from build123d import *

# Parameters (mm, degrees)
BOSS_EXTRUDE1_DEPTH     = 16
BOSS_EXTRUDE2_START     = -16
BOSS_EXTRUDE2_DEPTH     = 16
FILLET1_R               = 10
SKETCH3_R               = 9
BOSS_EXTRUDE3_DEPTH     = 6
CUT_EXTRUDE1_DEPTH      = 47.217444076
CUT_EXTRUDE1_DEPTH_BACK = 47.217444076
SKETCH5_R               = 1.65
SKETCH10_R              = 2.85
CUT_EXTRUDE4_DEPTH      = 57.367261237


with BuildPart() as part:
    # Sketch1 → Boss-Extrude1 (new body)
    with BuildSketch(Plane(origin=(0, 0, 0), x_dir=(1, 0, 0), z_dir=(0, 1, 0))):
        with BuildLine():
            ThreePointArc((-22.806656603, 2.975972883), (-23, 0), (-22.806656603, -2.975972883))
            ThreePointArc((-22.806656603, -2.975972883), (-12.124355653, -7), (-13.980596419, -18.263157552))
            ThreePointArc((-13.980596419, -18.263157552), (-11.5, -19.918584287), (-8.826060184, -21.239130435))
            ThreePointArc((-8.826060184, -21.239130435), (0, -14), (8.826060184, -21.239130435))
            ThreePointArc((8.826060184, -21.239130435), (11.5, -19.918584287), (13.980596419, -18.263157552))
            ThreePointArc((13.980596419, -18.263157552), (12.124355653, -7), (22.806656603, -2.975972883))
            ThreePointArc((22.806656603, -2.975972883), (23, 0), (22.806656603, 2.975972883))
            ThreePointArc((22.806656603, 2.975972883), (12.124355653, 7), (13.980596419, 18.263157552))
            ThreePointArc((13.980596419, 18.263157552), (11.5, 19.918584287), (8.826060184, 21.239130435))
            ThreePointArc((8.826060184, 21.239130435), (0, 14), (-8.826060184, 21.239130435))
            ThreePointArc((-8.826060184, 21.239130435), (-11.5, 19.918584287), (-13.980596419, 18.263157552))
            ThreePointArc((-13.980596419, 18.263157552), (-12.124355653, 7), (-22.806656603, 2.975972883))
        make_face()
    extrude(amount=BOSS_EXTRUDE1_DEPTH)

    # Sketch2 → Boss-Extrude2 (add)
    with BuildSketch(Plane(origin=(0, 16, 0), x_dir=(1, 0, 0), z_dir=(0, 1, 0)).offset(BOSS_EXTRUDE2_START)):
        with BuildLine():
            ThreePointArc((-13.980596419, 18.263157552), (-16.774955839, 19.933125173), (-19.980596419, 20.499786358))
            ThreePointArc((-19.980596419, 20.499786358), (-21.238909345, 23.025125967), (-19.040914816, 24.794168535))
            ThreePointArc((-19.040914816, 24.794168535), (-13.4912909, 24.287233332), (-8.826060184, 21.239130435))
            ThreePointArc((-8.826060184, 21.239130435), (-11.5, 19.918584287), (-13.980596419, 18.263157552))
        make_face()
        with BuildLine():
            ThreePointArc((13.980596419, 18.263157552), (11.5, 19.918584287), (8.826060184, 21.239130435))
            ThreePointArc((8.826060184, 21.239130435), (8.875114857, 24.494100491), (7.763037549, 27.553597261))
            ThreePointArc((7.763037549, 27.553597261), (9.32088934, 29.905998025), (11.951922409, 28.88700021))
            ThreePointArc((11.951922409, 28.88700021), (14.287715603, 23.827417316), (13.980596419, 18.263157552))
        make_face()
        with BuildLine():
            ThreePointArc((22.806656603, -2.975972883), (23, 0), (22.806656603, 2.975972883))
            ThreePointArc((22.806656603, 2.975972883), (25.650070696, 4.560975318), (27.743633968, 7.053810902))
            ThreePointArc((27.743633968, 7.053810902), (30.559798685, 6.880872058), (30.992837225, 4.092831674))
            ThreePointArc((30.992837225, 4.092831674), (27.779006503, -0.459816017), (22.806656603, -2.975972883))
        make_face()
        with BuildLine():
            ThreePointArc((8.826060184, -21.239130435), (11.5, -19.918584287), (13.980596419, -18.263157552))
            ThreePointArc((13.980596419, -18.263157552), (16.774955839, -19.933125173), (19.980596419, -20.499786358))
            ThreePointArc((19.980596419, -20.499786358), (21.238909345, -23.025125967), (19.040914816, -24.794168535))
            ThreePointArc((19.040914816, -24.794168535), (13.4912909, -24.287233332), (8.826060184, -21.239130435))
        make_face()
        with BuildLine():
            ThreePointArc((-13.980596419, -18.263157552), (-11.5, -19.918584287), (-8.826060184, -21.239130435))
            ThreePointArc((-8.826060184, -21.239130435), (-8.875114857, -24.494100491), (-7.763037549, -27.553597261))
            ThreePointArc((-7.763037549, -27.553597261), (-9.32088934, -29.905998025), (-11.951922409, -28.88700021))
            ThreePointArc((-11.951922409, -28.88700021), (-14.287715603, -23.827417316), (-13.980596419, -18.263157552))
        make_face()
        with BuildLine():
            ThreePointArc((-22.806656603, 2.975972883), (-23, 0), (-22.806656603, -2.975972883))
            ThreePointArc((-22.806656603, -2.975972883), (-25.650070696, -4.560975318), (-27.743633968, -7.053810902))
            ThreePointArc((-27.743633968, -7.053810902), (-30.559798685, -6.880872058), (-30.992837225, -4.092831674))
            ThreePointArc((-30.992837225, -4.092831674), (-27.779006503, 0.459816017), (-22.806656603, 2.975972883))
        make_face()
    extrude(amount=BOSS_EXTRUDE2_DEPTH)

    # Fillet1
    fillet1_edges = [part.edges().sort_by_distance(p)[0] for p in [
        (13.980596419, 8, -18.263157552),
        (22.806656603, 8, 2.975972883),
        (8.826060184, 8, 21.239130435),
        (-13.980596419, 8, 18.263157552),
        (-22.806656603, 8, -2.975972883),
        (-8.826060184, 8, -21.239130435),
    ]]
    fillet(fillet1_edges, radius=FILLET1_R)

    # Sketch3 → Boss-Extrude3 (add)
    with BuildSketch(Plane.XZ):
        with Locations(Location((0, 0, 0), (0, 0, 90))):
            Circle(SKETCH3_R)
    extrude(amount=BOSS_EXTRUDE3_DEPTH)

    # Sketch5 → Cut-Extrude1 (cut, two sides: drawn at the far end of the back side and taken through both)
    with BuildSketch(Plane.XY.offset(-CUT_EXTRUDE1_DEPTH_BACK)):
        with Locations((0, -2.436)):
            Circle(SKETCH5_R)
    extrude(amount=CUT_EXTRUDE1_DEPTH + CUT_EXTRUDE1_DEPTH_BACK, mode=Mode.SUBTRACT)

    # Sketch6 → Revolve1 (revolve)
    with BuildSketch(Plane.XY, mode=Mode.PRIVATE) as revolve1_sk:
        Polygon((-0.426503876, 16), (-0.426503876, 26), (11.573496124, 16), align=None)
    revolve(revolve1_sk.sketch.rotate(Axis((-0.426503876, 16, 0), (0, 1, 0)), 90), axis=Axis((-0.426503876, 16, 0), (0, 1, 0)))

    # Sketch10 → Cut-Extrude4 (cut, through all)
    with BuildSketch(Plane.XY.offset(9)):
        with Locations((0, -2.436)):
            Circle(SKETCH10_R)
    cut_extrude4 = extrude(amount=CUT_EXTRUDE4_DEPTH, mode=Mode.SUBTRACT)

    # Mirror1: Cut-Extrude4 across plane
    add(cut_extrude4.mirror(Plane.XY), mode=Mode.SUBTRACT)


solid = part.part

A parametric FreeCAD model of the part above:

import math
import FreeCAD as App
import Part
import Sketcher
from FreeCAD import Vector
Q = App.Units.Quantity


def edges_at(feature, points):
    """Names of the edges that pass closest to the given points."""
    edges = feature.Shape.Edges
    near = lambda p: min(range(len(edges)), key=lambda i: edges[i].distToShape(Part.Vertex(*p))[0])
    return sorted({f"Edge{near(p) + 1}" for p in points})

doc = App.newDocument("Part")
body = doc.addObject("PartDesign::Body", "Body")

sketch1 = doc.addObject("Sketcher::SketchObject", "Sketch")
body.addObject(sketch1)
sketch1.AttachmentSupport = (doc.XZ_Plane, [""])
sketch1.MapMode = "FlatFace"
sketch1.addGeometry([
    Part.ArcOfCircle(Part.Circle(Vector(0, 0, 0), Vector(0, 0, 1), 23), math.radians(172.565649), math.radians(187.434351)),
    Part.ArcOfCircle(Part.Circle(Vector(-19.918584, 11.5, 0), Vector(0, 0, 1), 9), math.radians(-108.717176), math.radians(48.717176)),
    Part.ArcOfCircle(Part.Circle(Vector(0, 0, 0), Vector(0, 0, 1), 23), math.radians(112.565649), math.radians(127.434351)),
    Part.ArcOfCircle(Part.Circle(Vector(0, 23, 0), Vector(0, 0, 1), 9), math.radians(-168.717176), math.radians(-11.282824)),
    Part.ArcOfCircle(Part.Circle(Vector(0, 0, 0), Vector(0, 0, 1), 23), math.radians(52.565649), math.radians(67.434351)),
    Part.ArcOfCircle(Part.Circle(Vector(19.918584, 11.5, 0), Vector(0, 0, 1), 9), math.radians(131.282824), math.radians(288.717176)),
    Part.ArcOfCircle(Part.Circle(Vector(0, 0, 0), Vector(0, 0, 1), 23), math.radians(-7.434351), math.radians(7.434351)),
    Part.ArcOfCircle(Part.Circle(Vector(19.918584, -11.5, 0), Vector(0, 0, 1), 9), math.radians(71.282824), math.radians(228.717176)),
    Part.ArcOfCircle(Part.Circle(Vector(0, 0, 0), Vector(0, 0, 1), 23), math.radians(-67.434351), math.radians(-52.565649)),
    Part.ArcOfCircle(Part.Circle(Vector(0, -23, 0), Vector(0, 0, 1), 9), math.radians(11.282824), math.radians(168.717176)),
    Part.ArcOfCircle(Part.Circle(Vector(0, 0, 0), Vector(0, 0, 1), 23), math.radians(-127.434351), math.radians(-112.565649)),
    Part.ArcOfCircle(Part.Circle(Vector(-19.918584, -11.5, 0), Vector(0, 0, 1), 9), math.radians(-48.717176), math.radians(108.717176)),
], False)
sketch1.addConstraint([
    Sketcher.Constraint("Coincident", 0, 1, 1, 1),
    Sketcher.Constraint("Coincident", 1, 2, 2, 2),
    Sketcher.Constraint("Coincident", 2, 1, 3, 1),
    Sketcher.Constraint("Coincident", 3, 2, 4, 2),
    Sketcher.Constraint("Coincident", 4, 1, 5, 1),
    Sketcher.Constraint("Coincident", 5, 2, 6, 2),
    Sketcher.Constraint("Coincident", 6, 1, 7, 1),
    Sketcher.Constraint("Coincident", 7, 2, 8, 2),
    Sketcher.Constraint("Coincident", 8, 1, 9, 1),
    Sketcher.Constraint("Coincident", 9, 2, 10, 2),
    Sketcher.Constraint("Coincident", 10, 1, 11, 1),
    Sketcher.Constraint("Coincident", 11, 2, 0, 2),
    Sketcher.Constraint("Coincident", 0, 3, -1, 1),
    Sketcher.Constraint("Coincident", 2, 3, -1, 1),
    Sketcher.Constraint("Coincident", 4, 3, -1, 1),
    Sketcher.Constraint("Coincident", 6, 3, -1, 1),
    Sketcher.Constraint("Coincident", 8, 3, -1, 1),
    Sketcher.Constraint("Coincident", 10, 3, -1, 1),
    Sketcher.Constraint("Equal", 0, 2),
    Sketcher.Constraint("Equal", 1, 3),
    Sketcher.Constraint("Equal", 2, 4),
    Sketcher.Constraint("Equal", 3, 5),
    Sketcher.Constraint("Equal", 4, 6),
    Sketcher.Constraint("Equal", 5, 7),
    Sketcher.Constraint("Equal", 6, 8),
    Sketcher.Constraint("Equal", 7, 9),
    Sketcher.Constraint("Equal", 8, 10),
    Sketcher.Constraint("Equal", 9, 11),
    Sketcher.Constraint("Symmetric", 1, 3, 7, 3, -1, 1),
    Sketcher.Constraint("Symmetric", 3, 3, 9, 3, -1, 1),
    Sketcher.Constraint("Symmetric", 5, 3, 11, 3, -1, 1),
    Sketcher.Constraint("Symmetric", 1, 3, 5, 3, -2),
    Sketcher.Constraint("PointOnObject", 3, 3, -2),
    Sketcher.Constraint("Radius", 0, Q("23 mm")),
    Sketcher.Constraint("Radius", 1, Q("9 mm")),
    Sketcher.Constraint("DistanceY", -1, 1, 3, 3, Q("23 mm")),
    Sketcher.Constraint("DistanceY", 7, 3, 5, 3, Q("23 mm")),
    Sketcher.Constraint("DistanceX", 1, 3, 5, 3, Q("39.837169 mm")),
])
pad1 = doc.addObject("PartDesign::Pad", "Pad")
body.addObject(pad1)
pad1.Profile = sketch1
pad1.Length = 16
pad1.Reversed = True

sketch2 = doc.addObject("Sketcher::SketchObject", "Sketch001")
body.addObject(sketch2)
sketch2.AttachmentSupport = (doc.XZ_Plane, [""])
sketch2.MapMode = "FlatFace"
sketch2.addGeometry([
    Part.ArcOfCircle(Part.Circle(Vector(-19.918584, -11.5, 0), Vector(0, 0, 1), 9), math.radians(-90.394785), math.radians(-48.717176)),
    Part.ArcOfCircle(Part.Circle(Vector(0, 0, 0), Vector(0, 0, 1), 23), math.radians(-127.434351), math.radians(-112.565649)),
    Part.ArcOfCircle(Part.Circle(Vector(-17.284979, -13.386655, 0), Vector(0, 0, 1), 11.541866), math.radians(-98.750745), math.radians(-42.870774)),
    Part.ArcOfCircle(Part.Circle(Vector(-19.040915, -22.544169, 0), Vector(0, 0, 1), 2.25), math.radians(114.685445), math.radians(270)),
    Part.ArcOfCircle(Part.Circle(Vector(0, 0, 0), Vector(0, 0, 1), 23), math.radians(-67.434351), math.radians(-52.565649)),
    Part.ArcOfCircle(Part.Circle(Vector(2.950694, -21.662558, 0), Vector(0, 0, 1), 11.541866), math.radians(-38.750745), math.radians(17.129226)),
    Part.ArcOfCircle(Part.Circle(Vector(10.003365, -27.762, 0), Vector(0, 0, 1), 2.25), math.radians(174.685445), math.radians(330)),
    Part.ArcOfCircle(Part.Circle(Vector(0, -23, 0), Vector(0, 0, 1), 9), math.radians(-30.394785), math.radians(11.282824)),
    Part.ArcOfCircle(Part.Circle(Vector(0, 0, 0), Vector(0, 0, 1), 23), math.radians(-7.434351), math.radians(7.434351)),
    Part.ArcOfCircle(Part.Circle(Vector(20.235673, -8.275903, 0), Vector(0, 0, 1), 11.541866), math.radians(21.249255), math.radians(77.129226)),
    Part.ArcOfCircle(Part.Circle(Vector(29.04428, -5.217832, 0), Vector(0, 0, 1), 2.25), math.radians(-125.314555), math.radians(30)),
    Part.ArcOfCircle(Part.Circle(Vector(19.918584, -11.5, 0), Vector(0, 0, 1), 9), math.radians(29.605215), math.radians(71.282824)),
    Part.ArcOfCircle(Part.Circle(Vector(0, 0, 0), Vector(0, 0, 1), 23), math.radians(52.565649), math.radians(67.434351)),
    Part.ArcOfCircle(Part.Circle(Vector(17.284979, 13.386655, 0), Vector(0, 0, 1), 11.541866), math.radians(81.249255), math.radians(137.129226)),
    Part.ArcOfCircle(Part.Circle(Vector(19.040915, 22.544169, 0), Vector(0, 0, 1), 2.25), math.radians(-65.314555), math.radians(90)),
    Part.ArcOfCircle(Part.Circle(Vector(19.918584, 11.5, 0), Vector(0, 0, 1), 9), math.radians(89.605215), math.radians(131.282824)),
    Part.ArcOfCircle(Part.Circle(Vector(0, 0, 0), Vector(0, 0, 1), 23), math.radians(112.565649), math.radians(127.434351)),
    Part.ArcOfCircle(Part.Circle(Vector(-2.950694, 21.662558, 0), Vector(0, 0, 1), 11.541866), math.radians(141.249255), math.radians(197.129226)),
    Part.ArcOfCircle(Part.Circle(Vector(-10.003365, 27.762, 0), Vector(0, 0, 1), 2.25), math.radians(-5.314555), math.radians(150)),
    Part.ArcOfCircle(Part.Circle(Vector(0, 23, 0), Vector(0, 0, 1), 9), math.radians(149.605215), math.radians(191.282824)),
    Part.ArcOfCircle(Part.Circle(Vector(0, 0, 0), Vector(0, 0, 1), 23), math.radians(172.565649), math.radians(187.434351)),
    Part.ArcOfCircle(Part.Circle(Vector(-20.235673, 8.275903, 0), Vector(0, 0, 1), 11.541866), math.radians(-158.750745), math.radians(-102.870774)),
    Part.ArcOfCircle(Part.Circle(Vector(-29.04428, 5.217832, 0), Vector(0, 0, 1), 2.25), math.radians(54.685445), math.radians(210)),
    Part.ArcOfCircle(Part.Circle(Vector(-19.918584, 11.5, 0), Vector(0, 0, 1), 9), math.radians(-150.394785), math.radians(-108.717176)),
], False)
sketch2.addConstraint([
    Sketcher.Constraint("Coincident", 0, 2, 1, 1),
    Sketcher.Constraint("Coincident", 1, 2, 2, 2),
    Sketcher.Constraint("Coincident", 2, 1, 3, 2),
    Sketcher.Constraint("Coincident", 3, 1, 0, 1),
    Sketcher.Constraint("Coincident", 4, 2, 5, 2),
    Sketcher.Constraint("Coincident", 5, 1, 6, 2),
    Sketcher.Constraint("Coincident", 6, 1, 7, 1),
    Sketcher.Constraint("Coincident", 7, 2, 4, 1),
    Sketcher.Constraint("Coincident", 8, 2, 9, 2),
    Sketcher.Constraint("Coincident", 9, 1, 10, 2),
    Sketcher.Constraint("Coincident", 10, 1, 11, 1),
    Sketcher.Constraint("Coincident", 11, 2, 8, 1),
    Sketcher.Constraint("Coincident", 12, 2, 13, 2),
    Sketcher.Constraint("Coincident", 13, 1, 14, 2),
    Sketcher.Constraint("Coincident", 14, 1, 15, 1),
    Sketcher.Constraint("Coincident", 15, 2, 12, 1),
    Sketcher.Constraint("Coincident", 16, 2, 17, 2),
    Sketcher.Constraint("Coincident", 17, 1, 18, 2),
    Sketcher.Constraint("Coincident", 18, 1, 19, 1),
    Sketcher.Constraint("Coincident", 19, 2, 16, 1),
    Sketcher.Constraint("Coincident", 20, 2, 21, 2),
    Sketcher.Constraint("Coincident", 21, 1, 22, 2),
    Sketcher.Constraint("Coincident", 22, 1, 23, 1),
    Sketcher.Constraint("Coincident", 23, 2, 20, 1),
    Sketcher.Constraint("Coincident", 1, 3, -1, 1),
    Sketcher.Constraint("Coincident", 4, 3, -1, 1),
    Sketcher.Constraint("Coincident", 8, 3, -1, 1),
    Sketcher.Constraint("Coincident", 12, 3, -1, 1),
    Sketcher.Constraint("Coincident", 16, 3, -1, 1),
    Sketcher.Constraint("Coincident", 20, 3, -1, 1),
    Sketcher.Constraint("Equal", 1, 4),
    Sketcher.Constraint("Equal", 2, 5),
    Sketcher.Constraint("Equal", 3, 6),
    Sketcher.Constraint("Equal", 0, 7),
    Sketcher.Constraint("Equal", 4, 8),
    Sketcher.Constraint("Equal", 5, 9),
    Sketcher.Constraint("Equal", 6, 10),
    Sketcher.Constraint("Equal", 7, 11),
    Sketcher.Constraint("Equal", 8, 12),
    Sketcher.Constraint("Equal", 9, 13),
    Sketcher.Constraint("Equal", 10, 14),
    Sketcher.Constraint("Equal", 11, 15),
    Sketcher.Constraint("Equal", 12, 16),
    Sketcher.Constraint("Equal", 13, 17),
    Sketcher.Constraint("Equal", 14, 18),
    Sketcher.Constraint("Equal", 15, 19),
    Sketcher.Constraint("Equal", 16, 20),
    Sketcher.Constraint("Equal", 17, 21),
    Sketcher.Constraint("Equal", 18, 22),
    Sketcher.Constraint("Equal", 19, 23),
    Sketcher.Constraint("Symmetric", 2, 3, 13, 3, -1, 1),
    Sketcher.Constraint("Symmetric", 3, 3, 14, 3, -1, 1),
    Sketcher.Constraint("Symmetric", 0, 3, 15, 3, -1, 1),
    Sketcher.Constraint("Symmetric", 5, 3, 17, 3, -1, 1),
    Sketcher.Constraint("Symmetric", 6, 3, 18, 3, -1, 1),
    Sketcher.Constraint("Symmetric", 7, 3, 19, 3, -1, 1),
    Sketcher.Constraint("Symmetric", 9, 3, 21, 3, -1, 1),
    Sketcher.Constraint("Symmetric", 10, 3, 22, 3, -1, 1),
    Sketcher.Constraint("Symmetric", 11, 3, 23, 3, -1, 1),
    Sketcher.Constraint("Symmetric", 0, 3, 11, 3, -2),
    Sketcher.Constraint("PointOnObject", 7, 3, -2),
    Sketcher.Constraint("Horizontal", 0, 2, 4, 2),
    Sketcher.Constraint("Horizontal", 1, 2, 7, 2),
    Sketcher.Constraint("Horizontal", 11, 2, 20, 2),
    Sketcher.Constraint("Vertical", 3, 3, 2, 1),
    Sketcher.Constraint("Radius", 0, Q("9 mm")),
    Sketcher.Constraint("Radius", 1, Q("23 mm")),
    Sketcher.Constraint("Radius", 3, Q("2.25 mm")),
    Sketcher.Constraint("DistanceY", 7, 3, -1, 1, Q("23 mm")),
    Sketcher.Constraint("DistanceX", 3, 1, 0, 2, Q("6 mm")),
    Sketcher.Constraint("DistanceY", 0, 3, -1, 1, Q("11.5 mm")),
    Sketcher.Constraint("DistanceY", 6, 3, -1, 1, Q("27.762 mm")),
    Sketcher.Constraint("DistanceY", 5, 1, -1, 1, Q("28.887 mm")),
    Sketcher.Constraint("Radius", 2, Q("11.541866 mm")),
    Sketcher.Constraint("DistanceY", 10, 3, 14, 3, Q("27.762 mm")),
    Sketcher.Constraint("DistanceY", 10, 3, 9, 1, Q("1.125 mm")),
    Sketcher.Constraint("DistanceX", 22, 3, 2, 3, Q("11.759301 mm")),
    Sketcher.Constraint("DistanceY", 5, 3, 0, 2, Q("3.399401 mm")),
    Sketcher.Constraint("DistanceX", 2, 3, -1, 1, Q("17.284979 mm")),
    Sketcher.Constraint("DistanceY", 3, 3, -1, 1, Q("22.544169 mm")),
])
pad2 = doc.addObject("PartDesign::Pad", "Pad001")
body.addObject(pad2)
pad2.Profile = sketch2
pad2.Length = 16
pad2.Reversed = True
doc.recompute()

fillet = doc.addObject("PartDesign::Fillet", "Fillet")
body.addObject(fillet)
fillet.Base = (pad2, edges_at(pad2, [
    (13.981, 8, -18.263),
    (22.807, 8, 2.976),
    (8.826, 8, 21.239),
    (-13.981, 8, 18.263),
    (-22.807, 8, -2.976),
    (-8.826, 8, -21.239),
]))
fillet.Radius = 10

sketch3 = doc.addObject("Sketcher::SketchObject", "Sketch002")
body.addObject(sketch3)
sketch3.AttachmentSupport = (doc.XZ_Plane, [""])
sketch3.MapMode = "FlatFace"
sketch3.addGeometry(Part.Circle(Vector(0, 0, 0), Vector(0, 0, 1), 9), False)
sketch3.addConstraint([
    Sketcher.Constraint("Coincident", 0, 3, -1, 1),
    Sketcher.Constraint("Diameter", 0, Q("18 mm")),
])
pad3 = doc.addObject("PartDesign::Pad", "Pad002")
body.addObject(pad3)
pad3.Profile = sketch3
pad3.Length = 6

sketch4 = doc.addObject("Sketcher::SketchObject", "Sketch003")
body.addObject(sketch4)
sketch4.AttachmentSupport = (doc.XY_Plane, [""])
sketch4.MapMode = "FlatFace"
sketch4.addGeometry(Part.Circle(Vector(0, -2.436, 0), Vector(0, 0, 1), 1.65), False)
sketch4.addConstraint([
    Sketcher.Constraint("PointOnObject", 0, 3, -2),
    Sketcher.Constraint("Diameter", 0, Q("3.3 mm")),
    Sketcher.Constraint("DistanceY", 0, 3, -1, 1, Q("2.436 mm")),
])
pocket1 = doc.addObject("PartDesign::Pocket", "Pocket")
body.addObject(pocket1)
pocket1.Profile = sketch4
pocket1.Type = "ThroughAll"
pocket1.Midplane = True

sketch5 = doc.addObject("Sketcher::SketchObject", "Sketch004")
body.addObject(sketch5)
sketch5.AttachmentSupport = (doc.XY_Plane, [""])
sketch5.MapMode = "FlatFace"
sketch5.addGeometry([
    Part.LineSegment(Vector(-0.426504, 26, 0), Vector(-0.426504, 16, 0)),
    Part.LineSegment(Vector(-0.426504, 16, 0), Vector(11.573496, 16, 0)),
    Part.LineSegment(Vector(11.573496, 16, 0), Vector(-0.426504, 26, 0)),
], False)
sketch5.addGeometry(Part.LineSegment(Vector(-0.426504, 16, 0), Vector(-0.426504, 26, 0)), True)
sketch5.addConstraint([
    Sketcher.Constraint("Coincident", 0, 2, 1, 1),
    Sketcher.Constraint("Coincident", 1, 2, 2, 1),
    Sketcher.Constraint("Coincident", 2, 2, 0, 1),
    Sketcher.Constraint("Vertical", 0),
    Sketcher.Constraint("Horizontal", 1),
    Sketcher.Constraint("Vertical", 3),
    Sketcher.Constraint("Coincident", 3, 1, 0, 2),
    Sketcher.Constraint("Equal", 0, 3),
    Sketcher.Constraint("DistanceX", 1, 1, 1, 2, Q("12 mm")),
    Sketcher.Constraint("DistanceY", 0, 2, 0, 1, Q("10 mm")),
    Sketcher.Constraint("DistanceY", -1, 1, 0, 2, Q("16 mm")),
    Sketcher.Constraint("DistanceX", 0, 2, -1, 1, Q("0.426504 mm")),
])
revolution = doc.addObject("PartDesign::Revolution", "Revolution")
body.addObject(revolution)
revolution.Profile = sketch5
revolution.ReferenceAxis = (sketch5, ["Axis0"])
revolution.Angle = 360

sketch6 = doc.addObject("Sketcher::SketchObject", "Sketch005")
body.addObject(sketch6)
sketch6.AttachmentSupport = (doc.XY_Plane, [""])
sketch6.MapMode = "FlatFace"
sketch6.AttachmentOffset = App.Placement(Vector(0, 0, 9), App.Rotation())
sketch6.addGeometry(Part.Circle(Vector(0, -2.436, 0), Vector(0, 0, 1), 2.85), False)
sketch6.addConstraint([
    Sketcher.Constraint("PointOnObject", 0, 3, -2),
    Sketcher.Constraint("Diameter", 0, Q("5.7 mm")),
    Sketcher.Constraint("DistanceY", 0, 3, -1, 1, Q("2.436 mm")),
])
pocket2 = doc.addObject("PartDesign::Pocket", "Pocket001")
body.addObject(pocket2)
pocket2.Profile = sketch6
pocket2.Type = "ThroughAll"
pocket2.Reversed = True
doc.recompute()

mirrored = doc.addObject("PartDesign::Mirrored", "Mirrored")
body.addObject(mirrored)
mirrored.Originals = [pocket2]
mirrored.MirrorPlane = (doc.XY_Plane, [""])
body.Tip = mirrored

doc.recompute()
